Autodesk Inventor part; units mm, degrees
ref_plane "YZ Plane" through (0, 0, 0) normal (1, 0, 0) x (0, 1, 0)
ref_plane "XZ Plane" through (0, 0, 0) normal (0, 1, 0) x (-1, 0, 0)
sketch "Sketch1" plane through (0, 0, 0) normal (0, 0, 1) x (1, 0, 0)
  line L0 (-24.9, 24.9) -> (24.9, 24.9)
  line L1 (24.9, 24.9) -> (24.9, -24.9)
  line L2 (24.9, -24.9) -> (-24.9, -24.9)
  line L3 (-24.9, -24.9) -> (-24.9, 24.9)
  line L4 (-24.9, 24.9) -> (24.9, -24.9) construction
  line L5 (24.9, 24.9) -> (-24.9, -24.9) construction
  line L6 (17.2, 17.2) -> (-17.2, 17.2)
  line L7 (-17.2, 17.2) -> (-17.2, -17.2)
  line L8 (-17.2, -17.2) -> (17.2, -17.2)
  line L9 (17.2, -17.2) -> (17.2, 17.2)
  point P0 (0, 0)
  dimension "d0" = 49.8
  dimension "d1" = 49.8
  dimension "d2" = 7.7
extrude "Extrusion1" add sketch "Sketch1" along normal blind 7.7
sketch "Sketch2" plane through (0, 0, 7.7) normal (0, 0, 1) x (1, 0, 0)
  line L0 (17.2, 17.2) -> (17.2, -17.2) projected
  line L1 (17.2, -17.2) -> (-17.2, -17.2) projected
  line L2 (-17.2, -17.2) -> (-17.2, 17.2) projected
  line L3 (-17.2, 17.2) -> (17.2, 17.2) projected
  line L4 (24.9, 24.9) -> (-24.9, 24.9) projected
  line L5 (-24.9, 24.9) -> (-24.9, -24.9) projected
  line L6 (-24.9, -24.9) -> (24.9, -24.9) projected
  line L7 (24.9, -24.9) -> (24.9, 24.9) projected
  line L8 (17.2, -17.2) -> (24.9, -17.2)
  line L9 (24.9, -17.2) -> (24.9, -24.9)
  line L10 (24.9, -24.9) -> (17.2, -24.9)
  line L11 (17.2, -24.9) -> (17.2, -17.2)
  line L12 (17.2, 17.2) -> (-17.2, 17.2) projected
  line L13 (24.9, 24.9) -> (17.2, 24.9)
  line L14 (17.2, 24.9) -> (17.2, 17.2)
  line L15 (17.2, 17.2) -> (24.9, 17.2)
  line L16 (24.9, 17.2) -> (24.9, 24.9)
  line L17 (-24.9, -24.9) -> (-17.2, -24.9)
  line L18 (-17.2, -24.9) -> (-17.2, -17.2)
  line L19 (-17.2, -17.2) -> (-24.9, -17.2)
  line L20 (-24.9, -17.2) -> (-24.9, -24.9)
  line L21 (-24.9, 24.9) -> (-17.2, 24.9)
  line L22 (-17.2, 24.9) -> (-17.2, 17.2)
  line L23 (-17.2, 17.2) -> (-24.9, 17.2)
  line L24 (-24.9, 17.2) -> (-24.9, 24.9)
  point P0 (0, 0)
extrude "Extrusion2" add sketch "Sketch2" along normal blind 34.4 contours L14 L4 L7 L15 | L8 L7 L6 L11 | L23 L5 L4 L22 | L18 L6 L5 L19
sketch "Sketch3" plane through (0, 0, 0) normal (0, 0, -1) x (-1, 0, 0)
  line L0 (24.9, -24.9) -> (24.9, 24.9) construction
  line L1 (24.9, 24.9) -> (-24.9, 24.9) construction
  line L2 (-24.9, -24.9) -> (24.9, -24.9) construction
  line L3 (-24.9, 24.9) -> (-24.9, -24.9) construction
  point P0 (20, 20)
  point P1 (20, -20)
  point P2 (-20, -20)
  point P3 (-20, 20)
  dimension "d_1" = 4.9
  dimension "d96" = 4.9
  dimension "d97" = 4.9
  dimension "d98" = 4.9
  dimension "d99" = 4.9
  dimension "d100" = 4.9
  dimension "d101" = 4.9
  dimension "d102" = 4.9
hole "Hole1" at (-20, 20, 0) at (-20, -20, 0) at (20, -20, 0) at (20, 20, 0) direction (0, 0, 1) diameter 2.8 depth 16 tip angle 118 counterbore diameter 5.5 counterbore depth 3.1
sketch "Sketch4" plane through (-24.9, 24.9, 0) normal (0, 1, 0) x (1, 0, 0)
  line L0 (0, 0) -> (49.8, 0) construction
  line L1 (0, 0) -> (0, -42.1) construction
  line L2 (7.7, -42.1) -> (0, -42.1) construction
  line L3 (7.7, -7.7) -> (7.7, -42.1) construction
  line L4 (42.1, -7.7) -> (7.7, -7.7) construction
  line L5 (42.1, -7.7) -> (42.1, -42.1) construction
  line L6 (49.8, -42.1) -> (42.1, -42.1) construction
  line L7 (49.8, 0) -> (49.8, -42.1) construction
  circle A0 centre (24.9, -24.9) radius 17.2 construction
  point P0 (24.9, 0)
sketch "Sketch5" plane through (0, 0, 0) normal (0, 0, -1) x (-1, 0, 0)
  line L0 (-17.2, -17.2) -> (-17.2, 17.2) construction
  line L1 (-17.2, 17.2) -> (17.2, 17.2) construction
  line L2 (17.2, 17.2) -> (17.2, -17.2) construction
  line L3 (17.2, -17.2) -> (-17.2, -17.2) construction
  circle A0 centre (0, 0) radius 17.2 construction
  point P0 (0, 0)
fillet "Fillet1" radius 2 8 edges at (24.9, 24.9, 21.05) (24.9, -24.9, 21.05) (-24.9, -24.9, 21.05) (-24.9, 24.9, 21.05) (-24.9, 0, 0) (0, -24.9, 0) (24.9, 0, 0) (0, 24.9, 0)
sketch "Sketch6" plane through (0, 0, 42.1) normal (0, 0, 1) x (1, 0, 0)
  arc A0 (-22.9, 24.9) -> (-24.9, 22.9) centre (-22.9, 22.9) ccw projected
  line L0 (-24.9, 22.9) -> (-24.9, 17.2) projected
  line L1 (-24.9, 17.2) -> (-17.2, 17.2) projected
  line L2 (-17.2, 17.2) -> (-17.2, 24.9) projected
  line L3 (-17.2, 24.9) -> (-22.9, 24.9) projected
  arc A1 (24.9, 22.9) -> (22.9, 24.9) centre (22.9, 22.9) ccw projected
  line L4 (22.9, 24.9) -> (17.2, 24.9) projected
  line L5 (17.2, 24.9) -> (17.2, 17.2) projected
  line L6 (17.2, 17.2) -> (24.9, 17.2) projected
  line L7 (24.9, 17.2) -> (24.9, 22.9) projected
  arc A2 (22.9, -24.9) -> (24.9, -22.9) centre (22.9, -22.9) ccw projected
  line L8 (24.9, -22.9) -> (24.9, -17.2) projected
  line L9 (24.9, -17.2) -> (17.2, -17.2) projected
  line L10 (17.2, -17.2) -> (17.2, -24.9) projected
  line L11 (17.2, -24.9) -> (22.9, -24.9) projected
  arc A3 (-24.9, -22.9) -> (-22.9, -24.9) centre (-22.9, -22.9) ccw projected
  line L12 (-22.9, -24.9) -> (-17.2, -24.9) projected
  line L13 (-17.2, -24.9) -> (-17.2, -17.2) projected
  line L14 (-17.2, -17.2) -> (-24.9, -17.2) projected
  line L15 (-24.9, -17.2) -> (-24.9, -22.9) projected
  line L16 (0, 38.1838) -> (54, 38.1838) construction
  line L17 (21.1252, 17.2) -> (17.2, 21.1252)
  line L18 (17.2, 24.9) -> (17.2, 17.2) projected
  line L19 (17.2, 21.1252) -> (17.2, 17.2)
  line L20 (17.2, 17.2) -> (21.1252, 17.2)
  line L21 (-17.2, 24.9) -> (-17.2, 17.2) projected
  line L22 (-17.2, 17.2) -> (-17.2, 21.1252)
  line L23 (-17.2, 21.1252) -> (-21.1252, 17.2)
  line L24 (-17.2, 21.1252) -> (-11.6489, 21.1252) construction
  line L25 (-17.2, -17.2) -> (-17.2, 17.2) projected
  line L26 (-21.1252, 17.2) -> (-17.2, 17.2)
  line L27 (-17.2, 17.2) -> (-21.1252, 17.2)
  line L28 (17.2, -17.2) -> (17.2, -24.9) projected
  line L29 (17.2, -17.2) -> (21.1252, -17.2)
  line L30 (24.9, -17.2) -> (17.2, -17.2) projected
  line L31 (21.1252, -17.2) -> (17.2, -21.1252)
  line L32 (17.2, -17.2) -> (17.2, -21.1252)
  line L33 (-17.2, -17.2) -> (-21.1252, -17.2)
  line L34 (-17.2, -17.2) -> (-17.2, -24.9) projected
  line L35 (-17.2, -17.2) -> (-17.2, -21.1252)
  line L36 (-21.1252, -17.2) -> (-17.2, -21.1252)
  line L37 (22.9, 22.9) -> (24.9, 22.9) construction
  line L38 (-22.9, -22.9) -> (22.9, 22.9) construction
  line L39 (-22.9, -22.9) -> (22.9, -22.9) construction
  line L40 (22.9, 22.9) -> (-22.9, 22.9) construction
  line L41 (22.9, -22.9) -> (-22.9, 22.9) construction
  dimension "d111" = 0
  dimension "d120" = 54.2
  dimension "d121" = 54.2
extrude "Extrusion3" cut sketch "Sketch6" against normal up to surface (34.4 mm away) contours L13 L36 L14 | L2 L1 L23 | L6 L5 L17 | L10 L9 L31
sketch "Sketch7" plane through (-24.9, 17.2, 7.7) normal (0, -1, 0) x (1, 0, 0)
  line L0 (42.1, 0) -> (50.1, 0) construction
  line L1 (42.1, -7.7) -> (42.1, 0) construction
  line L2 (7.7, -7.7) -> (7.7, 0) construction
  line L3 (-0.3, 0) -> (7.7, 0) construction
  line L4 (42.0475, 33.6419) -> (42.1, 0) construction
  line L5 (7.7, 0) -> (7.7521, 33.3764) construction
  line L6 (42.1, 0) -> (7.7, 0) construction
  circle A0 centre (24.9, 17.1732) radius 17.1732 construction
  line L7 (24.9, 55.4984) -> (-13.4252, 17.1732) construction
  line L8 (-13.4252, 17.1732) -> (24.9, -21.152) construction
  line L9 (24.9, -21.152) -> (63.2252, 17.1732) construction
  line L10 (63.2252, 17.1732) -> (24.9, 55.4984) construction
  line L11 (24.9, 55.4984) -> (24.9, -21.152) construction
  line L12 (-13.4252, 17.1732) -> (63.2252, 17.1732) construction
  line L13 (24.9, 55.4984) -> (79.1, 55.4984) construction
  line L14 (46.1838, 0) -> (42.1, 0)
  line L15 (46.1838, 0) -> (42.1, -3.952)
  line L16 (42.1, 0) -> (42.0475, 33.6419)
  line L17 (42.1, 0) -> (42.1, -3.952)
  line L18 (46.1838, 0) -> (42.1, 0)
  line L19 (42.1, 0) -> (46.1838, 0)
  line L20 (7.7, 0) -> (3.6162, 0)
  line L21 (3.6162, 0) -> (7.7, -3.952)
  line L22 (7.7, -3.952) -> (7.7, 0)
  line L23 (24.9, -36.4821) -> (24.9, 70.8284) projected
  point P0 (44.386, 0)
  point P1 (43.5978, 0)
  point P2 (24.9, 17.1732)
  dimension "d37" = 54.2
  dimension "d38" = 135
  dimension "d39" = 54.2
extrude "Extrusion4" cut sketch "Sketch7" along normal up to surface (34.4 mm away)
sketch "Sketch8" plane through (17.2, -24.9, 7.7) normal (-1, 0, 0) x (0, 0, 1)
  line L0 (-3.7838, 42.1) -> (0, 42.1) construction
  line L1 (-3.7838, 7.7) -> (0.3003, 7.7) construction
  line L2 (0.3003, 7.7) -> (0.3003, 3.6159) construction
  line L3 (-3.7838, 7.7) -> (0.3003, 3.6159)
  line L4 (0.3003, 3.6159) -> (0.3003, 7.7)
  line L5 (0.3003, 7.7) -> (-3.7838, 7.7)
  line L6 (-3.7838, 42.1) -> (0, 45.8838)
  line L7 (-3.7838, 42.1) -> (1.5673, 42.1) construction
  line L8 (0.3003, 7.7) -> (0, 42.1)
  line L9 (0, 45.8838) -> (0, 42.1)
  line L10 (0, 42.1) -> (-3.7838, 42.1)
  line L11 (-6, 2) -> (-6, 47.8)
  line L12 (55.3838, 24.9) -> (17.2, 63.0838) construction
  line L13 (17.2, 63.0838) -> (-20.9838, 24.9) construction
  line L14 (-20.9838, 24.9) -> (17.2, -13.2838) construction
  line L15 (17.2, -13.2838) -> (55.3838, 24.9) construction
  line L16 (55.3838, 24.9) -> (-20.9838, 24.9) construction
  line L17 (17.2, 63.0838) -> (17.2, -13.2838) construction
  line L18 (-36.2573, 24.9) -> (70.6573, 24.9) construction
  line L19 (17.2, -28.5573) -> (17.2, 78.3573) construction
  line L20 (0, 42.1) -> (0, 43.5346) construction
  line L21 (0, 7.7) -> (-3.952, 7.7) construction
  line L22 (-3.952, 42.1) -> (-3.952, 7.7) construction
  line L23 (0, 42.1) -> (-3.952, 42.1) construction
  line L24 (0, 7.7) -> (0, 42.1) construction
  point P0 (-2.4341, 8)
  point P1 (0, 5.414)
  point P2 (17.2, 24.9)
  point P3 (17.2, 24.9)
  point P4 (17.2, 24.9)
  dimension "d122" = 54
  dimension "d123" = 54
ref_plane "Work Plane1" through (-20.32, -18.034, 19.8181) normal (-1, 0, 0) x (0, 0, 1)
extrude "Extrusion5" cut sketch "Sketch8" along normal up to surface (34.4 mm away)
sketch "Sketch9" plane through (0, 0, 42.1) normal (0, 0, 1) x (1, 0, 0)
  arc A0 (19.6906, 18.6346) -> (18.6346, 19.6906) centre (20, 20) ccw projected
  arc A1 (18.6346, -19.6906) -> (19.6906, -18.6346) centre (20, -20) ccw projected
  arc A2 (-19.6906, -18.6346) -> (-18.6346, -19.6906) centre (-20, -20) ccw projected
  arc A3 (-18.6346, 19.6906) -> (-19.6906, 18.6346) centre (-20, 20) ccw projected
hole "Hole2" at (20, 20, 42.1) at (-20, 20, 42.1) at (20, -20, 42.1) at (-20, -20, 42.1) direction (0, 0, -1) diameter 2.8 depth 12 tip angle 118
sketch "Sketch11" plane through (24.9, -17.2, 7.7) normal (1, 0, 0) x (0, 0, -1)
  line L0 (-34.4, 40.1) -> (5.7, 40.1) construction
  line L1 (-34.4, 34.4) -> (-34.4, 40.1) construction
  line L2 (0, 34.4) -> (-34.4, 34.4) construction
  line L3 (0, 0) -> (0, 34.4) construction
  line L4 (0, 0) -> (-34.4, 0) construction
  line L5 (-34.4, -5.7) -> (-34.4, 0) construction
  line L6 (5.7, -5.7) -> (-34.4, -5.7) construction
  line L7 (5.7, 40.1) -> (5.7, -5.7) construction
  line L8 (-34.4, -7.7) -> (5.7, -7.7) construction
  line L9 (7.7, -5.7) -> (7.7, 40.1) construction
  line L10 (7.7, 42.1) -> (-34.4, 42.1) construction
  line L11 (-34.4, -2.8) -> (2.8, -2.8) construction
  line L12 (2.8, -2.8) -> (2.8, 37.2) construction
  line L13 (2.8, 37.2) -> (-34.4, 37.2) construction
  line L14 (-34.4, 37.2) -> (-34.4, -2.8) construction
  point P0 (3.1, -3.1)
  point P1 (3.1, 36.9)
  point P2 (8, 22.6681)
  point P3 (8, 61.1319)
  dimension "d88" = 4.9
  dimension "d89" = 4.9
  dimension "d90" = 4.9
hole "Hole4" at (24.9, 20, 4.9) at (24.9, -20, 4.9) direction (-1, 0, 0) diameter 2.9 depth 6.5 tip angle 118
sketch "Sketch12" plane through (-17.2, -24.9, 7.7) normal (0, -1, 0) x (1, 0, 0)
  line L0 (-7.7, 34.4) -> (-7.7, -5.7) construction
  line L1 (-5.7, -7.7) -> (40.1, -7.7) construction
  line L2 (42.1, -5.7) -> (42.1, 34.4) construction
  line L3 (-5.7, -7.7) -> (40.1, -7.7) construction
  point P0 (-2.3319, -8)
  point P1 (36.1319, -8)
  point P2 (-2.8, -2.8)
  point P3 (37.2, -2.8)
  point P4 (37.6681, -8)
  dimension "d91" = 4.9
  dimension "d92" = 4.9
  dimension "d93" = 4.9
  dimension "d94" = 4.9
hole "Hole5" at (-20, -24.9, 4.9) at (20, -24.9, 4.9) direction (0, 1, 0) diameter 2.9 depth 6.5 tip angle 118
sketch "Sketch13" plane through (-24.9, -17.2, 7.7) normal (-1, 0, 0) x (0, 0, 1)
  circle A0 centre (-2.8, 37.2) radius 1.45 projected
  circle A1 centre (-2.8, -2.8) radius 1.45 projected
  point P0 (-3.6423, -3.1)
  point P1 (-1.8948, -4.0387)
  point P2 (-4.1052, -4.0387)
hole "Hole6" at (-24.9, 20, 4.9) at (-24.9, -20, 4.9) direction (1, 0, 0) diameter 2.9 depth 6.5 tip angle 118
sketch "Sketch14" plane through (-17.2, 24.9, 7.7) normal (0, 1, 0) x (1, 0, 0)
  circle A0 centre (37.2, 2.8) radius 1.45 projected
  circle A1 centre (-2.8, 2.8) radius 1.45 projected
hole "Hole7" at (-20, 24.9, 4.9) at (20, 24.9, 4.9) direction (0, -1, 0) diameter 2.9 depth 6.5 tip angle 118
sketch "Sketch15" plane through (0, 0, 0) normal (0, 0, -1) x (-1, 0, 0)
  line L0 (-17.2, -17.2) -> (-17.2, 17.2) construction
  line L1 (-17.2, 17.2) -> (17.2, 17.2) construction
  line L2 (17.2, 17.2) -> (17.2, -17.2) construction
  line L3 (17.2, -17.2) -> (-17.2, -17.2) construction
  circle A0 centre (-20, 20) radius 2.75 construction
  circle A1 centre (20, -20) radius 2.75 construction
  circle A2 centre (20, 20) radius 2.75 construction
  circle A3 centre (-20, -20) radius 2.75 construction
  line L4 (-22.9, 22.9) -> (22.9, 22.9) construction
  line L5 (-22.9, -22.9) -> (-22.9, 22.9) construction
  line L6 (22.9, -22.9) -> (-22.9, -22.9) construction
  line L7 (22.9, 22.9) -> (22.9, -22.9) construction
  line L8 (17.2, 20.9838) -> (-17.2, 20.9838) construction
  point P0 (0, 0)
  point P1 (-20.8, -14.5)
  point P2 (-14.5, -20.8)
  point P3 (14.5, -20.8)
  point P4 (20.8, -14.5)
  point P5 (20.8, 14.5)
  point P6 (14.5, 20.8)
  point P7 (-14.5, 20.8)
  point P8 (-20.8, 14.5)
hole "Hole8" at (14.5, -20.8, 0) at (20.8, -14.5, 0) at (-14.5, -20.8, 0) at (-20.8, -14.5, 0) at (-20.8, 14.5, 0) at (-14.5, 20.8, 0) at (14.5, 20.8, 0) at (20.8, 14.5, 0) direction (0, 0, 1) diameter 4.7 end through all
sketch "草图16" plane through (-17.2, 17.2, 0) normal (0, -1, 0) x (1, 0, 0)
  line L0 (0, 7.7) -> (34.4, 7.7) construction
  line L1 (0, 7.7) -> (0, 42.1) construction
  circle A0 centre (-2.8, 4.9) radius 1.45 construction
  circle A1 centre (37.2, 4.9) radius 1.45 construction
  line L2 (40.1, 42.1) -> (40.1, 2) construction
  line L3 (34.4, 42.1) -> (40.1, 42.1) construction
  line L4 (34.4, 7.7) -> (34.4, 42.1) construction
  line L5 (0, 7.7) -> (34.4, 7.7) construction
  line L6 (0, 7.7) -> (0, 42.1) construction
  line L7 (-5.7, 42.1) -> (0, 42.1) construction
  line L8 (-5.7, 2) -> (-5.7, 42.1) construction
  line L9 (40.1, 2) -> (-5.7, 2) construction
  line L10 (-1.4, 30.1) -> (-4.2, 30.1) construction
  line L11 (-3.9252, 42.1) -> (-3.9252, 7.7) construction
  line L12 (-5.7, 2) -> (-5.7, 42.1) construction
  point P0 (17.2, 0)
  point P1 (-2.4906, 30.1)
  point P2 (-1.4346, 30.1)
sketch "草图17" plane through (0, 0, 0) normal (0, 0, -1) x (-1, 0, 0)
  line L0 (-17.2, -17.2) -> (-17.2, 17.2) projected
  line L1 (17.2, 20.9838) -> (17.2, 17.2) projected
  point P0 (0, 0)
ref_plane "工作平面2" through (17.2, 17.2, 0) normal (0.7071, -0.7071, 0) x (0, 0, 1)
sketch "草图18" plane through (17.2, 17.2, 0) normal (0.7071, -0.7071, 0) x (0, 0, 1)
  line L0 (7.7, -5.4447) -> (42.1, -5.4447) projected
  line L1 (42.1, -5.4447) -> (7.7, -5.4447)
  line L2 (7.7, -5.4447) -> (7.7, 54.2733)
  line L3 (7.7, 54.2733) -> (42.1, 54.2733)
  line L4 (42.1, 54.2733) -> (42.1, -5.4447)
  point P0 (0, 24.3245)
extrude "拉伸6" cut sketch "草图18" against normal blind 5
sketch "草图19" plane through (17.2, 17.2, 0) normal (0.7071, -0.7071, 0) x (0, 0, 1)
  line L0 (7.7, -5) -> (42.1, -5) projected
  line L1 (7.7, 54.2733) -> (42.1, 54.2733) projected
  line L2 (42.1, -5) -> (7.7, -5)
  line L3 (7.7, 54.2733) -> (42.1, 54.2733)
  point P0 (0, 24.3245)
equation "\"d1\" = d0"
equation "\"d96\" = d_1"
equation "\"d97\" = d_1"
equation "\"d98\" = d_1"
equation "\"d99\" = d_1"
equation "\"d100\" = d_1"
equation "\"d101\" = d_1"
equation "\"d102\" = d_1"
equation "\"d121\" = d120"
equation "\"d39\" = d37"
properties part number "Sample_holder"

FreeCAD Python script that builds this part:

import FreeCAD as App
import Part
import Sketcher

V = App.Vector
Q = App.Units.Quantity


def edges_at(feature, points):
    """Names of the edges that pass closest to the given points."""
    edges = feature.Shape.Edges
    near = lambda p: min(range(len(edges)), key=lambda i: edges[i].distToShape(Part.Vertex(*p))[0])
    return sorted({f"Edge{near(p) + 1}" for p in points})

doc = App.newDocument("Part")
body = doc.addObject("PartDesign::Body", "Body")

# Sketch on XY plane
sketch1 = body.newObject("Sketcher::SketchObject", "Sketch")
sketch1.AttachmentSupport = (doc.getObject("XY_Plane"), [""])
sketch1.MapMode = "FlatFace"
sketch1.addGeometry([
    Part.LineSegment(V(24.9, 24.9, 0), V(-24.9, 24.9, 0)),  # 0
    Part.LineSegment(V(-24.9, 24.9, 0), V(-24.9, -24.9, 0)),  # 1
    Part.LineSegment(V(-24.9, -24.9, 0), V(24.9, -24.9, 0)),  # 2
    Part.LineSegment(V(24.9, -24.9, 0), V(24.9, 24.9, 0)),  # 3
    Part.LineSegment(V(-17.2, 17.2, 0), V(17.2, 17.2, 0)),  # 4
    Part.LineSegment(V(17.2, 17.2, 0), V(17.2, -17.2, 0)),  # 5
    Part.LineSegment(V(17.2, -17.2, 0), V(-17.2, -17.2, 0)),  # 6
    Part.LineSegment(V(-17.2, -17.2, 0), V(-17.2, 17.2, 0)),  # 7
], False)
sketch1.addConstraint([
    Sketcher.Constraint("Coincident", 0, 2, 1, 1),
    Sketcher.Constraint("Coincident", 1, 2, 2, 1),
    Sketcher.Constraint("Coincident", 2, 2, 3, 1),
    Sketcher.Constraint("Coincident", 3, 2, 0, 1),
    Sketcher.Constraint("Coincident", 4, 2, 5, 1),
    Sketcher.Constraint("Coincident", 5, 2, 6, 1),
    Sketcher.Constraint("Coincident", 6, 2, 7, 1),
    Sketcher.Constraint("Coincident", 7, 2, 4, 1),
    Sketcher.Constraint("Horizontal", 0),
    Sketcher.Constraint("Vertical", 1),
    Sketcher.Constraint("Horizontal", 2),
    Sketcher.Constraint("Vertical", 3),
    Sketcher.Constraint("Horizontal", 4),
    Sketcher.Constraint("Vertical", 5),
    Sketcher.Constraint("Horizontal", 6),
    Sketcher.Constraint("Vertical", 7),
    Sketcher.Constraint("Symmetric", 0, 2, 2, 2, -1, 1),
    Sketcher.Constraint("Symmetric", 4, 2, 6, 2, -1, 1),
    Sketcher.Constraint("Equal", 2, 1),
    Sketcher.Constraint("Equal", 6, 5),
    Sketcher.Constraint("DistanceX", 0, 2, 0, 1, Q("49.8 mm")),
    Sketcher.Constraint("DistanceX", 4, 2, 3, 2, Q("7.7 mm")),
])
pad1 = body.newObject("PartDesign::Pad", "Pad")
pad1.Profile = sketch1
pad1.Length = 7.7

# Sketch on XY plane
sketch2 = body.newObject("Sketcher::SketchObject", "Sketch001")
sketch2.AttachmentSupport = (doc.getObject("XY_Plane"), [""])
sketch2.MapMode = "FlatFace"
sketch2.AttachmentOffset = App.Placement(V(0, 0, 7.7), App.Rotation())
sketch2.addGeometry([
    Part.LineSegment(V(17.2, 24.9, 0), V(17.2, 17.2, 0)),  # 0
    Part.LineSegment(V(17.2, 17.2, 0), V(24.9, 17.2, 0)),  # 1
    Part.LineSegment(V(24.9, 17.2, 0), V(24.9, 24.9, 0)),  # 2
    Part.LineSegment(V(24.9, 24.9, 0), V(17.2, 24.9, 0)),  # 3
    Part.LineSegment(V(24.9, -17.2, 0), V(17.2, -17.2, 0)),  # 4
    Part.LineSegment(V(17.2, -17.2, 0), V(17.2, -24.9, 0)),  # 5
    Part.LineSegment(V(17.2, -24.9, 0), V(24.9, -24.9, 0)),  # 6
    Part.LineSegment(V(24.9, -24.9, 0), V(24.9, -17.2, 0)),  # 7
    Part.LineSegment(V(-24.9, 17.2, 0), V(-17.2, 17.2, 0)),  # 8
    Part.LineSegment(V(-17.2, 17.2, 0), V(-17.2, 24.9, 0)),  # 9
    Part.LineSegment(V(-17.2, 24.9, 0), V(-24.9, 24.9, 0)),  # 10
    Part.LineSegment(V(-24.9, 24.9, 0), V(-24.9, 17.2, 0)),  # 11
    Part.LineSegment(V(-17.2, -24.9, 0), V(-17.2, -17.2, 0)),  # 12
    Part.LineSegment(V(-17.2, -17.2, 0), V(-24.9, -17.2, 0)),  # 13
    Part.LineSegment(V(-24.9, -17.2, 0), V(-24.9, -24.9, 0)),  # 14
    Part.LineSegment(V(-24.9, -24.9, 0), V(-17.2, -24.9, 0)),  # 15
], False)
sketch2.addConstraint([
    Sketcher.Constraint("Coincident", 0, 2, 1, 1),
    Sketcher.Constraint("Coincident", 1, 2, 2, 1),
    Sketcher.Constraint("Coincident", 2, 2, 3, 1),
    Sketcher.Constraint("Coincident", 3, 2, 0, 1),
    Sketcher.Constraint("Coincident", 4, 2, 5, 1),
    Sketcher.Constraint("Coincident", 5, 2, 6, 1),
    Sketcher.Constraint("Coincident", 6, 2, 7, 1),
    Sketcher.Constraint("Coincident", 7, 2, 4, 1),
    Sketcher.Constraint("Coincident", 8, 2, 9, 1),
    Sketcher.Constraint("Coincident", 9, 2, 10, 1),
    Sketcher.Constraint("Coincident", 10, 2, 11, 1),
    Sketcher.Constraint("Coincident", 11, 2, 8, 1),
    Sketcher.Constraint("Coincident", 12, 2, 13, 1),
    Sketcher.Constraint("Coincident", 13, 2, 14, 1),
    Sketcher.Constraint("Coincident", 14, 2, 15, 1),
    Sketcher.Constraint("Coincident", 15, 2, 12, 1),
    Sketcher.Constraint("Vertical", 0),
    Sketcher.Constraint("Horizontal", 1),
    Sketcher.Constraint("Vertical", 2),
    Sketcher.Constraint("Horizontal", 3),
    Sketcher.Constraint("Horizontal", 4),
    Sketcher.Constraint("Vertical", 5),
    Sketcher.Constraint("Horizontal", 6),
    Sketcher.Constraint("Vertical", 7),
    Sketcher.Constraint("Horizontal", 8),
    Sketcher.Constraint("Vertical", 9),
    Sketcher.Constraint("Horizontal", 10),
    Sketcher.Constraint("Vertical", 11),
    Sketcher.Constraint("Vertical", 12),
    Sketcher.Constraint("Horizontal", 13),
    Sketcher.Constraint("Vertical", 14),
    Sketcher.Constraint("Horizontal", 15),
    Sketcher.Constraint("Symmetric", 4, 2, 8, 2, -1, 1),
    Sketcher.Constraint("Symmetric", 6, 2, 10, 2, -1, 1),
    Sketcher.Constraint("Symmetric", 0, 2, 12, 2, -1, 1),
    Sketcher.Constraint("Symmetric", 2, 2, 14, 2, -1, 1),
    Sketcher.Constraint("Symmetric", 0, 2, 8, 2, -2),
    Sketcher.Constraint("Symmetric", 2, 2, 10, 2, -2),
    Sketcher.Constraint("Equal", 15, 0),
    Sketcher.Constraint("DistanceX", 1, 1, 1, 2, Q("7.7 mm")),
    Sketcher.Constraint("DistanceX", -1, 1, 0, 2, Q("17.2 mm")),
    Sketcher.Constraint("DistanceY", -1, 1, 0, 2, Q("17.2 mm")),
])
pad2 = body.newObject("PartDesign::Pad", "Pad001")
pad2.Profile = sketch2
pad2.Length = 34.4

# Sketch on XY plane
sketch3 = body.newObject("Sketcher::SketchObject", "Sketch002")
sketch3.AttachmentSupport = (doc.getObject("XY_Plane"), [""])
sketch3.MapMode = "FlatFace"
sketch3.addGeometry([
    Part.Circle(V(-20, 20, 0), V(0, 0, 1), 1.4),
    Part.Circle(V(-20, -20, 0), V(0, 0, 1), 1.4),
    Part.Circle(V(20, -20, 0), V(0, 0, 1), 1.4),
    Part.Circle(V(20, 20, 0), V(0, 0, 1), 1.4),
], False)
sketch3.addConstraint([
    Sketcher.Constraint("Equal", 0, 1),
    Sketcher.Constraint("Equal", 1, 2),
    Sketcher.Constraint("Equal", 2, 3),
    Sketcher.Constraint("Symmetric", 0, 3, 2, 3, -1, 1),
    Sketcher.Constraint("Symmetric", 1, 3, 3, 3, -1, 1),
    Sketcher.Constraint("Symmetric", 1, 3, 2, 3, -2),
    Sketcher.Constraint("Diameter", 0, Q("2.8 mm")),
    Sketcher.Constraint("DistanceX", 0, 3, -1, 1, Q("20 mm")),
    Sketcher.Constraint("DistanceY", -1, 1, 0, 3, Q("20 mm")),
])
doc.recompute()
hole = body.newObject("PartDesign::Hole", "Hole")
hole.Profile = sketch3
hole.ThreadType = "None"
hole.Diameter = 2.8
hole.DepthType = "Dimension"
hole.Depth = 16
hole.DrillPoint = "Angled"
hole.DrillPointAngle = 118
hole.HoleCutType = "Counterbore"
hole.HoleCutDiameter = 5.5
hole.HoleCutDepth = 3.1
hole.Reversed = True
doc.recompute()

fillet = body.newObject("PartDesign::Fillet", "Fillet")
fillet.Base = (hole, edges_at(hole, [
    (24.9, 24.9, 21.05),
    (24.9, -24.9, 21.05),
    (-24.9, -24.9, 21.05),
    (-24.9, 24.9, 21.05),
    (-24.9, 0, 0),
    (0, -24.9, 0),
    (24.9, 0, 0),
    (0, 24.9, 0),
]))
fillet.Radius = 2

# Sketch on XY plane
sketch4 = body.newObject("Sketcher::SketchObject", "Sketch003")
sketch4.AttachmentSupport = (doc.getObject("XY_Plane"), [""])
sketch4.MapMode = "FlatFace"
sketch4.AttachmentOffset = App.Placement(V(0, 0, 42.1), App.Rotation())
sketch4.addGeometry([
    Part.LineSegment(V(-17.2, -21.1252, 0), V(-17.2, -17.2, 0)),  # 0
    Part.LineSegment(V(-17.2, -17.2, 0), V(-21.1252, -17.2, 0)),  # 1
    Part.LineSegment(V(-21.1252, -17.2, 0), V(-17.2, -21.1252, 0)),  # 2
    Part.LineSegment(V(-17.2, 17.2, 0), V(-17.2, 21.1252, 0)),  # 3
    Part.LineSegment(V(-17.2, 21.1252, 0), V(-21.1252, 17.2, 0)),  # 4
    Part.LineSegment(V(-21.1252, 17.2, 0), V(-17.2, 17.2, 0)),  # 5
    Part.LineSegment(V(17.2, 17.2, 0), V(21.1252, 17.2, 0)),  # 6
    Part.LineSegment(V(21.1252, 17.2, 0), V(17.2, 21.1252, 0)),  # 7
    Part.LineSegment(V(17.2, 21.1252, 0), V(17.2, 17.2, 0)),  # 8
    Part.LineSegment(V(17.2, -17.2, 0), V(17.2, -21.1252, 0)),  # 9
    Part.LineSegment(V(17.2, -21.1252, 0), V(21.1252, -17.2, 0)),  # 10
    Part.LineSegment(V(21.1252, -17.2, 0), V(17.2, -17.2, 0)),  # 11
], False)
sketch4.addConstraint([
    Sketcher.Constraint("Coincident", 0, 2, 1, 1),
    Sketcher.Constraint("Coincident", 1, 2, 2, 1),
    Sketcher.Constraint("Coincident", 2, 2, 0, 1),
    Sketcher.Constraint("Coincident", 3, 2, 4, 1),
    Sketcher.Constraint("Coincident", 4, 2, 5, 1),
    Sketcher.Constraint("Coincident", 5, 2, 3, 1),
    Sketcher.Constraint("Coincident", 6, 2, 7, 1),
    Sketcher.Constraint("Coincident", 7, 2, 8, 1),
    Sketcher.Constraint("Coincident", 8, 2, 6, 1),
    Sketcher.Constraint("Coincident", 9, 2, 10, 1),
    Sketcher.Constraint("Coincident", 10, 2, 11, 1),
    Sketcher.Constraint("Coincident", 11, 2, 9, 1),
    Sketcher.Constraint("Vertical", 0),
    Sketcher.Constraint("Horizontal", 1),
    Sketcher.Constraint("Vertical", 3),
    Sketcher.Constraint("Horizontal", 5),
    Sketcher.Constraint("Horizontal", 6),
    Sketcher.Constraint("Vertical", 8),
    Sketcher.Constraint("Vertical", 9),
    Sketcher.Constraint("Horizontal", 11),
    Sketcher.Constraint("Symmetric", 1, 2, 6, 2, -1, 1),
    Sketcher.Constraint("Symmetric", 2, 2, 7, 2, -1, 1),
    Sketcher.Constraint("Symmetric", 3, 2, 9, 2, -1, 1),
    Sketcher.Constraint("Symmetric", 4, 2, 10, 2, -1, 1),
    Sketcher.Constraint("Symmetric", 4, 2, 6, 2, -2),
    Sketcher.Constraint("Symmetric", 3, 2, 7, 2, -2),
    Sketcher.Constraint("Perpendicular", 2, 4),
    Sketcher.Constraint("DistanceX", 0, 2, -1, 1, Q("17.2 mm")),
    Sketcher.Constraint("DistanceY", 0, 2, -1, 1, Q("17.2 mm")),
    Sketcher.Constraint("Distance", 2, Q("5.551 mm")),
])
pocket1 = body.newObject("PartDesign::Pocket", "Pocket")
pocket1.Profile = sketch4
pocket1.Length = 34.4

# Sketch on XZ plane
sketch5 = body.newObject("Sketcher::SketchObject", "Sketch004")
sketch5.AttachmentSupport = (doc.getObject("XZ_Plane"), [""])
sketch5.MapMode = "FlatFace"
sketch5.AttachmentOffset = App.Placement(V(0, 0, -17.2), App.Rotation())
sketch5.addGeometry([
    Part.LineSegment(V(17.2, 3.748, 0), V(21.2838, 7.7, 0)),  # 0
    Part.LineSegment(V(21.2838, 7.7, 0), V(17.2, 7.7, 0)),  # 1
    Part.LineSegment(V(17.2, 7.7, 0), V(17.2, 3.748, 0)),  # 2
    Part.LineSegment(V(-17.2, 3.748, 0), V(-17.2, 7.7, 0)),  # 3
    Part.LineSegment(V(-17.2, 7.7, 0), V(-21.2838, 7.7, 0)),  # 4
    Part.LineSegment(V(-21.2838, 7.7, 0), V(-17.2, 3.748, 0)),  # 5
], False)
sketch5.addConstraint([
    Sketcher.Constraint("Coincident", 0, 2, 1, 1),
    Sketcher.Constraint("Coincident", 1, 2, 2, 1),
    Sketcher.Constraint("Coincident", 2, 2, 0, 1),
    Sketcher.Constraint("Coincident", 3, 2, 4, 1),
    Sketcher.Constraint("Coincident", 4, 2, 5, 1),
    Sketcher.Constraint("Coincident", 5, 2, 3, 1),
    Sketcher.Constraint("Horizontal", 1),
    Sketcher.Constraint("Vertical", 2),
    Sketcher.Constraint("Vertical", 3),
    Sketcher.Constraint("Horizontal", 4),
    Sketcher.Constraint("Symmetric", 1, 2, 3, 2, -2),
    Sketcher.Constraint("Horizontal", 2, 2, 5, 2),
    Sketcher.Constraint("Equal", 1, 4),
    Sketcher.Constraint("DistanceY", -1, 1, 0, 2, Q("7.7 mm")),
    Sketcher.Constraint("DistanceX", -1, 1, 1, 2, Q("17.2 mm")),
    Sketcher.Constraint("Angle", 0, Q("44.0603 deg")),
    Sketcher.Constraint("DistanceY", 2, 2, 2, 1, Q("3.952 mm")),
])
pocket2 = body.newObject("PartDesign::Pocket", "Pocket001")
pocket2.Profile = sketch5
pocket2.Length = 34.4
pocket2.Reversed = True

# Sketch on YZ plane
sketch6 = body.newObject("Sketcher::SketchObject", "Sketch005")
sketch6.AttachmentSupport = (doc.getObject("YZ_Plane"), [""])
sketch6.MapMode = "FlatFace"
sketch6.AttachmentOffset = App.Placement(V(0, 0, 17.2), App.Rotation())
sketch6.addGeometry([
    Part.LineSegment(V(-17.2, 8.0003, 0), V(-17.2, 3.9162, 0)),  # 0
    Part.LineSegment(V(-17.2, 3.9162, 0), V(-21.2841, 8.0003, 0)),  # 1
    Part.LineSegment(V(-21.2841, 8.0003, 0), V(-17.2, 8.0003, 0)),  # 2
    Part.LineSegment(V(17.2, 3.9162, 0), V(17.2, 7.7, 0)),  # 3
    Part.LineSegment(V(17.2, 7.7, 0), V(20.9838, 7.7, 0)),  # 4
    Part.LineSegment(V(20.9838, 7.7, 0), V(17.2, 3.9162, 0)),  # 5
], False)
sketch6.addConstraint([
    Sketcher.Constraint("Coincident", 0, 2, 1, 1),
    Sketcher.Constraint("Coincident", 1, 2, 2, 1),
    Sketcher.Constraint("Coincident", 2, 2, 0, 1),
    Sketcher.Constraint("Coincident", 3, 2, 4, 1),
    Sketcher.Constraint("Coincident", 4, 2, 5, 1),
    Sketcher.Constraint("Coincident", 5, 2, 3, 1),
    Sketcher.Constraint("Vertical", 0),
    Sketcher.Constraint("Horizontal", 2),
    Sketcher.Constraint("Vertical", 3),
    Sketcher.Constraint("Horizontal", 4),
    Sketcher.Constraint("Symmetric", 0, 2, 5, 2, -2),
    Sketcher.Constraint("Perpendicular", 1, 5),
    Sketcher.Constraint("Equal", 2, 0),
    Sketcher.Constraint("DistanceX", 0, 2, -1, 1, Q("17.2 mm")),
    Sketcher.Constraint("DistanceY", -1, 1, 3, 2, Q("7.7 mm")),
    Sketcher.Constraint("DistanceX", 2, 1, 2, 2, Q("4.084 mm")),
    Sketcher.Constraint("Distance", 5, Q("5.351 mm")),
])
pocket3 = body.newObject("PartDesign::Pocket", "Pocket002")
pocket3.Profile = sketch6
pocket3.Length = 34.4

# Sketch on XY plane
sketch7 = body.newObject("Sketcher::SketchObject", "Sketch006")
sketch7.AttachmentSupport = (doc.getObject("XY_Plane"), [""])
sketch7.MapMode = "FlatFace"
sketch7.AttachmentOffset = App.Placement(V(0, 0, 42.1), App.Rotation())
sketch7.addGeometry([
    Part.Circle(V(20, 20, 0), V(0, 0, 1), 1.4),
    Part.Circle(V(-20, 20, 0), V(0, 0, 1), 1.4),
    Part.Circle(V(20, -20, 0), V(0, 0, 1), 1.4),
    Part.Circle(V(-20, -20, 0), V(0, 0, 1), 1.4),
], False)
sketch7.addConstraint([
    Sketcher.Constraint("Equal", 0, 1),
    Sketcher.Constraint("Equal", 1, 2),
    Sketcher.Constraint("Equal", 2, 3),
    Sketcher.Constraint("Symmetric", 1, 3, 2, 3, -1, 1),
    Sketcher.Constraint("Symmetric", 0, 3, 3, 3, -1, 1),
    Sketcher.Constraint("Symmetric", 0, 3, 1, 3, -2),
    Sketcher.Constraint("Diameter", 0, Q("2.8 mm")),
    Sketcher.Constraint("DistanceX", -1, 1, 0, 3, Q("20 mm")),
    Sketcher.Constraint("DistanceY", -1, 1, 0, 3, Q("20 mm")),
])
doc.recompute()
hole2 = body.newObject("PartDesign::Hole", "Hole001")
hole2.Profile = sketch7
hole2.ThreadType = "None"
hole2.Diameter = 2.8
hole2.DepthType = "Dimension"
hole2.Depth = 12
hole2.DrillPoint = "Angled"
hole2.DrillPointAngle = 118

# Sketch on YZ plane
sketch8 = body.newObject("Sketcher::SketchObject", "Sketch007")
sketch8.AttachmentSupport = (doc.getObject("YZ_Plane"), [""])
sketch8.MapMode = "FlatFace"
sketch8.AttachmentOffset = App.Placement(V(0, 0, 24.9), App.Rotation())
sketch8.addGeometry([
    Part.Circle(V(20, 4.9, 0), V(0, 0, 1), 1.45),
    Part.Circle(V(-20, 4.9, 0), V(0, 0, 1), 1.45),
], False)
sketch8.addConstraint([
    Sketcher.Constraint("Equal", 0, 1),
    Sketcher.Constraint("Symmetric", 0, 3, 1, 3, -2),
    Sketcher.Constraint("Diameter", 0, Q("2.9 mm")),
    Sketcher.Constraint("DistanceX", -1, 1, 0, 3, Q("20 mm")),
    Sketcher.Constraint("DistanceY", -1, 1, 0, 3, Q("4.9 mm")),
])
doc.recompute()
hole3 = body.newObject("PartDesign::Hole", "Hole002")
hole3.Profile = sketch8
hole3.ThreadType = "None"
hole3.Diameter = 2.9
hole3.DepthType = "Dimension"
hole3.Depth = 6.5
hole3.DrillPoint = "Angled"
hole3.DrillPointAngle = 118

# Sketch on XZ plane
sketch9 = body.newObject("Sketcher::SketchObject", "Sketch008")
sketch9.AttachmentSupport = (doc.getObject("XZ_Plane"), [""])
sketch9.MapMode = "FlatFace"
sketch9.AttachmentOffset = App.Placement(V(0, 0, 24.9), App.Rotation())
sketch9.addGeometry([
    Part.Circle(V(-20, 4.9, 0), V(0, 0, 1), 1.45),
    Part.Circle(V(20, 4.9, 0), V(0, 0, 1), 1.45),
], False)
sketch9.addConstraint([
    Sketcher.Constraint("Equal", 0, 1),
    Sketcher.Constraint("Symmetric", 0, 3, 1, 3, -2),
    Sketcher.Constraint("Diameter", 0, Q("2.9 mm")),
    Sketcher.Constraint("DistanceX", 0, 3, -1, 1, Q("20 mm")),
    Sketcher.Constraint("DistanceY", -1, 1, 0, 3, Q("4.9 mm")),
])
doc.recompute()
hole4 = body.newObject("PartDesign::Hole", "Hole003")
hole4.Profile = sketch9
hole4.ThreadType = "None"
hole4.Diameter = 2.9
hole4.DepthType = "Dimension"
hole4.Depth = 6.5
hole4.DrillPoint = "Angled"
hole4.DrillPointAngle = 118

# Sketch on YZ plane
sketch10 = body.newObject("Sketcher::SketchObject", "Sketch009")
sketch10.AttachmentSupport = (doc.getObject("YZ_Plane"), [""])
sketch10.MapMode = "FlatFace"
sketch10.AttachmentOffset = App.Placement(V(0, 0, -24.9), App.Rotation())
sketch10.addGeometry([
    Part.Circle(V(20, 4.9, 0), V(0, 0, 1), 1.45),
    Part.Circle(V(-20, 4.9, 0), V(0, 0, 1), 1.45),
], False)
sketch10.addConstraint([
    Sketcher.Constraint("Equal", 0, 1),
    Sketcher.Constraint("Symmetric", 0, 3, 1, 3, -2),
    Sketcher.Constraint("Diameter", 0, Q("2.9 mm")),
    Sketcher.Constraint("DistanceX", -1, 1, 0, 3, Q("20 mm")),
    Sketcher.Constraint("DistanceY", -1, 1, 0, 3, Q("4.9 mm")),
])
doc.recompute()
hole5 = body.newObject("PartDesign::Hole", "Hole004")
hole5.Profile = sketch10
hole5.ThreadType = "None"
hole5.Diameter = 2.9
hole5.DepthType = "Dimension"
hole5.Depth = 6.5
hole5.DrillPoint = "Angled"
hole5.DrillPointAngle = 118
hole5.Reversed = True

# Sketch on XZ plane
sketch11 = body.newObject("Sketcher::SketchObject", "Sketch010")
sketch11.AttachmentSupport = (doc.getObject("XZ_Plane"), [""])
sketch11.MapMode = "FlatFace"
sketch11.AttachmentOffset = App.Placement(V(0, 0, -24.9), App.Rotation())
sketch11.addGeometry([
    Part.Circle(V(-20, 4.9, 0), V(0, 0, 1), 1.45),
    Part.Circle(V(20, 4.9, 0), V(0, 0, 1), 1.45),
], False)
sketch11.addConstraint([
    Sketcher.Constraint("Equal", 0, 1),
    Sketcher.Constraint("Symmetric", 0, 3, 1, 3, -2),
    Sketcher.Constraint("Diameter", 0, Q("2.9 mm")),
    Sketcher.Constraint("DistanceX", 0, 3, -1, 1, Q("20 mm")),
    Sketcher.Constraint("DistanceY", -1, 1, 0, 3, Q("4.9 mm")),
])
doc.recompute()
hole6 = body.newObject("PartDesign::Hole", "Hole005")
hole6.Profile = sketch11
hole6.ThreadType = "None"
hole6.Diameter = 2.9
hole6.DepthType = "Dimension"
hole6.Depth = 6.5
hole6.DrillPoint = "Angled"
hole6.DrillPointAngle = 118
hole6.Reversed = True

# Sketch on XY plane
sketch12 = body.newObject("Sketcher::SketchObject", "Sketch011")
sketch12.AttachmentSupport = (doc.getObject("XY_Plane"), [""])
sketch12.MapMode = "FlatFace"
sketch12.addGeometry([
    Part.Circle(V(14.5, -20.8, 0), V(0, 0, 1), 2.35),  # 0
    Part.Circle(V(20.8, -14.5, 0), V(0, 0, 1), 2.35),  # 1
    Part.Circle(V(-14.5, -20.8, 0), V(0, 0, 1), 2.35),  # 2
    Part.Circle(V(-20.8, -14.5, 0), V(0, 0, 1), 2.35),  # 3
    Part.Circle(V(-20.8, 14.5, 0), V(0, 0, 1), 2.35),  # 4
    Part.Circle(V(-14.5, 20.8, 0), V(0, 0, 1), 2.35),  # 5
    Part.Circle(V(14.5, 20.8, 0), V(0, 0, 1), 2.35),  # 6
    Part.Circle(V(20.8, 14.5, 0), V(0, 0, 1), 2.35),  # 7
], False)
sketch12.addConstraint([
    Sketcher.Constraint("Equal", 0, 1),
    Sketcher.Constraint("Equal", 1, 2),
    Sketcher.Constraint("Equal", 2, 3),
    Sketcher.Constraint("Equal", 3, 4),
    Sketcher.Constraint("Equal", 4, 5),
    Sketcher.Constraint("Equal", 5, 6),
    Sketcher.Constraint("Equal", 6, 7),
    Sketcher.Constraint("Symmetric", 1, 3, 4, 3, -1, 1),
    Sketcher.Constraint("Symmetric", 0, 3, 5, 3, -1, 1),
    Sketcher.Constraint("Symmetric", 2, 3, 6, 3, -1, 1),
    Sketcher.Constraint("Symmetric", 3, 3, 7, 3, -1, 1),
    Sketcher.Constraint("Symmetric", 0, 3, 2, 3, -2),
    Sketcher.Constraint("Symmetric", 1, 3, 3, 3, -2),
    Sketcher.Constraint("Diameter", 0, Q("4.7 mm")),
    Sketcher.Constraint("DistanceX", 2, 3, 0, 3, Q("29 mm")),
    Sketcher.Constraint("DistanceY", 3, 3, 4, 3, Q("29 mm")),
    Sketcher.Constraint("DistanceY", 0, 3, -1, 1, Q("20.8 mm")),
    Sketcher.Constraint("DistanceX", -1, 1, 1, 3, Q("20.8 mm")),
])
doc.recompute()
hole7 = body.newObject("PartDesign::Hole", "Hole006")
hole7.Profile = sketch12
hole7.ThreadType = "None"
hole7.Diameter = 4.7
hole7.DepthType = "ThroughAll"
hole7.Reversed = True

# Sketch on an angled plane
sketch13 = body.newObject("Sketcher::SketchObject", "Sketch012")
sketch13.Placement = App.Placement(V(17.2, 17.2, 0), App.Rotation(V(0, 0, 1), V(-0.707106781, -0.707106781, 0), V(0.707106781, -0.707106781, 0), "ZXY"))
sketch13.addGeometry([
    Part.LineSegment(V(7.7, 54.2733, 0), V(7.7, -5.4447, 0)),
    Part.LineSegment(V(7.7, -5.4447, 0), V(42.1, -5.4447, 0)),
    Part.LineSegment(V(42.1, -5.4447, 0), V(42.1, 54.2733, 0)),
    Part.LineSegment(V(42.1, 54.2733, 0), V(7.7, 54.2733, 0)),
], False)
sketch13.addConstraint([
    Sketcher.Constraint("Coincident", 0, 2, 1, 1),
    Sketcher.Constraint("Coincident", 1, 2, 2, 1),
    Sketcher.Constraint("Coincident", 2, 2, 3, 1),
    Sketcher.Constraint("Coincident", 3, 2, 0, 1),
    Sketcher.Constraint("Vertical", 0),
    Sketcher.Constraint("Horizontal", 1),
    Sketcher.Constraint("Vertical", 2),
    Sketcher.Constraint("Horizontal", 3),
    Sketcher.Constraint("DistanceX", 1, 1, 1, 2, Q("34.4 mm")),
    Sketcher.Constraint("DistanceX", -1, 1, 0, 2, Q("7.7 mm")),
    Sketcher.Constraint("DistanceY", 0, 2, 0, 1, Q("59.718 mm")),
    Sketcher.Constraint("DistanceY", 0, 2, -1, 1, Q("5.4447 mm")),
])
pocket4 = body.newObject("PartDesign::Pocket", "Pocket003")
pocket4.Profile = sketch13
pocket4.Length = 5

doc.recompute()
